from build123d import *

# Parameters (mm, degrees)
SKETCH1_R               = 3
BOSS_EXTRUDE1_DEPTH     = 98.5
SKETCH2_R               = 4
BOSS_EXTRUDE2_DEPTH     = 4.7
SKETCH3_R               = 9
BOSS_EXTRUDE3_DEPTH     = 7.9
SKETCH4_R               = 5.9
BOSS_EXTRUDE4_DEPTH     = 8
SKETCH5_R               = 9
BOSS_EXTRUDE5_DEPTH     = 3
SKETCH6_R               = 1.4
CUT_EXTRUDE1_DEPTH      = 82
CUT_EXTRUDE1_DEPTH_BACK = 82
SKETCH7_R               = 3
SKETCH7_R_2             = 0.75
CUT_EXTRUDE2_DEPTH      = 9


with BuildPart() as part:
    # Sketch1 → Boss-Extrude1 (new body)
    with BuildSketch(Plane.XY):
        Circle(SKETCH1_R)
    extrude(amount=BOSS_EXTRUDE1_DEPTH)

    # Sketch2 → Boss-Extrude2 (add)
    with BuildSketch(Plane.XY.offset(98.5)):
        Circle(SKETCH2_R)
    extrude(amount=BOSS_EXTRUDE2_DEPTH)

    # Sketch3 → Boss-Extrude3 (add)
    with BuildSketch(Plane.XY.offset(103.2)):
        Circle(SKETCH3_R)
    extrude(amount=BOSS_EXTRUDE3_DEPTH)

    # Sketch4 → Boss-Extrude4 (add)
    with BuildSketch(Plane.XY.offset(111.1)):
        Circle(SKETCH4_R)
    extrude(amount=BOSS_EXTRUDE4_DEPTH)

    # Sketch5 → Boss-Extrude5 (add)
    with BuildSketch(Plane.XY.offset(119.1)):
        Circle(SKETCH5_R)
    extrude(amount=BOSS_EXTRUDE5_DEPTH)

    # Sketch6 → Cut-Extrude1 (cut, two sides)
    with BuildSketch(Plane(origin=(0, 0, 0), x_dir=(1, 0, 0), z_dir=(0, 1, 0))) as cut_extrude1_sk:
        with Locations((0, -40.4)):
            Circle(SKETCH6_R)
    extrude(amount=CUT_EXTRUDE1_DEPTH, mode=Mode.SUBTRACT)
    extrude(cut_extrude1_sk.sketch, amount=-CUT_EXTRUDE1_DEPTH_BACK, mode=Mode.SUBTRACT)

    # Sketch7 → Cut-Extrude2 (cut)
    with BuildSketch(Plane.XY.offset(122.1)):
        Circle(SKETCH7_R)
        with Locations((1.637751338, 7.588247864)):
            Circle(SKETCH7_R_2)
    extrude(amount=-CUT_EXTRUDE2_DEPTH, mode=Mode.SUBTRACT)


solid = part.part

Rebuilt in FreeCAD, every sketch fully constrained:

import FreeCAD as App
import Part
import Sketcher
from FreeCAD import Vector

doc = App.newDocument("Part")
params = doc.addObject("Spreadsheet::Sheet", "Params")
for row, (alias, value) in enumerate([
    ("sketch1_diameter", "6 mm"),
    ("pad1_length", "98.5 mm"),
    ("sketch2_diameter", "8 mm"),
    ("pad2_length", "4.7 mm"),
    ("sketch3_diameter", "18 mm"),
    ("pad3_length", "7.9 mm"),
    ("sketch4_diameter", "11.8 mm"),
    ("pad4_length", "8 mm"),
    ("sketch5_diameter", "18 mm"),
    ("pad5_length", "3 mm"),
    ("sketch6_diameter", "2.8 mm"),
    ("sketch7_diameter", "6 mm"),
    ("sketch7_diameter2", "1.5 mm"),
    ("pocket2_length", "9 mm"),
], start=1):
    params.set(f"A{row}", alias)
    params.set(f"B{row}", "=" + value)
    params.setAlias(f"B{row}", alias)

body = doc.addObject("PartDesign::Body", "Body")

# Sketch on XY plane
sketch1 = body.newObject("Sketcher::SketchObject", "Sketch")
sketch1.AttachmentSupport = (doc.getObject("XY_Plane"), [""])
sketch1.MapMode = "FlatFace"
sketch1.addGeometry(Part.Circle(Vector(0, 0, 0), Vector(0, 0, 1), 3), False)
sketch1.addConstraint(Sketcher.Constraint("Coincident", 0, 3, -1, 1))
sketch1.addConstraint(Sketcher.Constraint("Diameter", 0, 6.0))
sketch1.setExpression("Constraints[1]", "Params.sketch1_diameter")
pad1 = body.newObject("PartDesign::Pad", "Pad")
pad1.Profile = sketch1
pad1.setExpression("Length", "Params.pad1_length")

# Sketch on XY plane
sketch2 = body.newObject("Sketcher::SketchObject", "Sketch001")
sketch2.AttachmentSupport = (doc.getObject("XY_Plane"), [""])
sketch2.MapMode = "FlatFace"
sketch2.AttachmentOffset = App.Placement(Vector(0, 0, 98.5), App.Rotation())
sketch2.addGeometry(Part.Circle(Vector(0, 0, 0), Vector(0, 0, 1), 4), False)
sketch2.addConstraint(Sketcher.Constraint("Coincident", 0, 3, -1, 1))
sketch2.addConstraint(Sketcher.Constraint("Diameter", 0, 8.0))
sketch2.setExpression("Constraints[1]", "Params.sketch2_diameter")
pad2 = body.newObject("PartDesign::Pad", "Pad001")
pad2.Profile = sketch2
pad2.setExpression("Length", "Params.pad2_length")

# Sketch on XY plane
sketch3 = body.newObject("Sketcher::SketchObject", "Sketch002")
sketch3.AttachmentSupport = (doc.getObject("XY_Plane"), [""])
sketch3.MapMode = "FlatFace"
sketch3.AttachmentOffset = App.Placement(Vector(0, 0, 103.2), App.Rotation())
sketch3.addGeometry(Part.Circle(Vector(0, 0, 0), Vector(0, 0, 1), 9), False)
sketch3.addConstraint(Sketcher.Constraint("Coincident", 0, 3, -1, 1))
sketch3.addConstraint(Sketcher.Constraint("Diameter", 0, 18.0))
sketch3.setExpression("Constraints[1]", "Params.sketch3_diameter")
pad3 = body.newObject("PartDesign::Pad", "Pad002")
pad3.Profile = sketch3
pad3.setExpression("Length", "Params.pad3_length")

# Sketch on XY plane
sketch4 = body.newObject("Sketcher::SketchObject", "Sketch003")
sketch4.AttachmentSupport = (doc.getObject("XY_Plane"), [""])
sketch4.MapMode = "FlatFace"
sketch4.AttachmentOffset = App.Placement(Vector(0, 0, 111.1), App.Rotation())
sketch4.addGeometry(Part.Circle(Vector(0, 0, 0), Vector(0, 0, 1), 6), False)
sketch4.addConstraint(Sketcher.Constraint("Coincident", 0, 3, -1, 1))
sketch4.addConstraint(Sketcher.Constraint("Diameter", 0, 11.8))
sketch4.setExpression("Constraints[1]", "Params.sketch4_diameter")
pad4 = body.newObject("PartDesign::Pad", "Pad003")
pad4.Profile = sketch4
pad4.setExpression("Length", "Params.pad4_length")

# Sketch on XY plane
sketch5 = body.newObject("Sketcher::SketchObject", "Sketch004")
sketch5.AttachmentSupport = (doc.getObject("XY_Plane"), [""])
sketch5.MapMode = "FlatFace"
sketch5.AttachmentOffset = App.Placement(Vector(0, 0, 119.1), App.Rotation())
sketch5.addGeometry(Part.Circle(Vector(0, 0, 0), Vector(0, 0, 1), 9), False)
sketch5.addConstraint(Sketcher.Constraint("Coincident", 0, 3, -1, 1))
sketch5.addConstraint(Sketcher.Constraint("Diameter", 0, 18.0))
sketch5.setExpression("Constraints[1]", "Params.sketch5_diameter")
pad5 = body.newObject("PartDesign::Pad", "Pad004")
pad5.Profile = sketch5
pad5.setExpression("Length", "Params.pad5_length")

# Sketch on XZ plane
sketch6 = body.newObject("Sketcher::SketchObject", "Sketch005")
sketch6.AttachmentSupport = (doc.getObject("XZ_Plane"), [""])
sketch6.MapMode = "FlatFace"
sketch6.addGeometry(Part.Circle(Vector(0, 40.4, 0), Vector(0, 0, 1), 1.4), False)
sketch6.addConstraint(Sketcher.Constraint("PointOnObject", 0, 3, -2))
sketch6.addConstraint(Sketcher.Constraint("Diameter", 0, 2.8))
sketch6.addConstraint(Sketcher.Constraint("DistanceY", -1, 1, 0, 3, 40.4))
sketch6.setExpression("Constraints[1]", "Params.sketch6_diameter")
pocket1 = body.newObject("PartDesign::Pocket", "Pocket")
pocket1.Profile = sketch6
pocket1.Type = "ThroughAll"
pocket1.Midplane = True

# Sketch on XY plane
sketch7 = body.newObject("Sketcher::SketchObject", "Sketch006")
sketch7.AttachmentSupport = (doc.getObject("XY_Plane"), [""])
sketch7.MapMode = "FlatFace"
sketch7.AttachmentOffset = App.Placement(Vector(0, 0, 122.1), App.Rotation())
sketch7.addGeometry(Part.Circle(Vector(0, 0, 0), Vector(0, 0, 1), 3), False)
sketch7.addGeometry(Part.Circle(Vector(1.6, 7.6, 0), Vector(0, 0, 1), 0.8), False)
sketch7.addConstraint(Sketcher.Constraint("Coincident", 0, 3, -1, 1))
sketch7.addConstraint(Sketcher.Constraint("Diameter", 0, 6.0))
sketch7.addConstraint(Sketcher.Constraint("Diameter", 1, 1.5))
sketch7.addConstraint(Sketcher.Constraint("DistanceX", -1, 1, 1, 3, 1.637751))
sketch7.addConstraint(Sketcher.Constraint("DistanceY", -1, 1, 1, 3, 7.588248))
sketch7.setExpression("Constraints[1]", "Params.sketch7_diameter")
sketch7.setExpression("Constraints[2]", "Params.sketch7_diameter2")
pocket2 = body.newObject("PartDesign::Pocket", "Pocket001")
pocket2.Profile = sketch7
pocket2.setExpression("Length", "Params.pocket2_length")

doc.recompute()
